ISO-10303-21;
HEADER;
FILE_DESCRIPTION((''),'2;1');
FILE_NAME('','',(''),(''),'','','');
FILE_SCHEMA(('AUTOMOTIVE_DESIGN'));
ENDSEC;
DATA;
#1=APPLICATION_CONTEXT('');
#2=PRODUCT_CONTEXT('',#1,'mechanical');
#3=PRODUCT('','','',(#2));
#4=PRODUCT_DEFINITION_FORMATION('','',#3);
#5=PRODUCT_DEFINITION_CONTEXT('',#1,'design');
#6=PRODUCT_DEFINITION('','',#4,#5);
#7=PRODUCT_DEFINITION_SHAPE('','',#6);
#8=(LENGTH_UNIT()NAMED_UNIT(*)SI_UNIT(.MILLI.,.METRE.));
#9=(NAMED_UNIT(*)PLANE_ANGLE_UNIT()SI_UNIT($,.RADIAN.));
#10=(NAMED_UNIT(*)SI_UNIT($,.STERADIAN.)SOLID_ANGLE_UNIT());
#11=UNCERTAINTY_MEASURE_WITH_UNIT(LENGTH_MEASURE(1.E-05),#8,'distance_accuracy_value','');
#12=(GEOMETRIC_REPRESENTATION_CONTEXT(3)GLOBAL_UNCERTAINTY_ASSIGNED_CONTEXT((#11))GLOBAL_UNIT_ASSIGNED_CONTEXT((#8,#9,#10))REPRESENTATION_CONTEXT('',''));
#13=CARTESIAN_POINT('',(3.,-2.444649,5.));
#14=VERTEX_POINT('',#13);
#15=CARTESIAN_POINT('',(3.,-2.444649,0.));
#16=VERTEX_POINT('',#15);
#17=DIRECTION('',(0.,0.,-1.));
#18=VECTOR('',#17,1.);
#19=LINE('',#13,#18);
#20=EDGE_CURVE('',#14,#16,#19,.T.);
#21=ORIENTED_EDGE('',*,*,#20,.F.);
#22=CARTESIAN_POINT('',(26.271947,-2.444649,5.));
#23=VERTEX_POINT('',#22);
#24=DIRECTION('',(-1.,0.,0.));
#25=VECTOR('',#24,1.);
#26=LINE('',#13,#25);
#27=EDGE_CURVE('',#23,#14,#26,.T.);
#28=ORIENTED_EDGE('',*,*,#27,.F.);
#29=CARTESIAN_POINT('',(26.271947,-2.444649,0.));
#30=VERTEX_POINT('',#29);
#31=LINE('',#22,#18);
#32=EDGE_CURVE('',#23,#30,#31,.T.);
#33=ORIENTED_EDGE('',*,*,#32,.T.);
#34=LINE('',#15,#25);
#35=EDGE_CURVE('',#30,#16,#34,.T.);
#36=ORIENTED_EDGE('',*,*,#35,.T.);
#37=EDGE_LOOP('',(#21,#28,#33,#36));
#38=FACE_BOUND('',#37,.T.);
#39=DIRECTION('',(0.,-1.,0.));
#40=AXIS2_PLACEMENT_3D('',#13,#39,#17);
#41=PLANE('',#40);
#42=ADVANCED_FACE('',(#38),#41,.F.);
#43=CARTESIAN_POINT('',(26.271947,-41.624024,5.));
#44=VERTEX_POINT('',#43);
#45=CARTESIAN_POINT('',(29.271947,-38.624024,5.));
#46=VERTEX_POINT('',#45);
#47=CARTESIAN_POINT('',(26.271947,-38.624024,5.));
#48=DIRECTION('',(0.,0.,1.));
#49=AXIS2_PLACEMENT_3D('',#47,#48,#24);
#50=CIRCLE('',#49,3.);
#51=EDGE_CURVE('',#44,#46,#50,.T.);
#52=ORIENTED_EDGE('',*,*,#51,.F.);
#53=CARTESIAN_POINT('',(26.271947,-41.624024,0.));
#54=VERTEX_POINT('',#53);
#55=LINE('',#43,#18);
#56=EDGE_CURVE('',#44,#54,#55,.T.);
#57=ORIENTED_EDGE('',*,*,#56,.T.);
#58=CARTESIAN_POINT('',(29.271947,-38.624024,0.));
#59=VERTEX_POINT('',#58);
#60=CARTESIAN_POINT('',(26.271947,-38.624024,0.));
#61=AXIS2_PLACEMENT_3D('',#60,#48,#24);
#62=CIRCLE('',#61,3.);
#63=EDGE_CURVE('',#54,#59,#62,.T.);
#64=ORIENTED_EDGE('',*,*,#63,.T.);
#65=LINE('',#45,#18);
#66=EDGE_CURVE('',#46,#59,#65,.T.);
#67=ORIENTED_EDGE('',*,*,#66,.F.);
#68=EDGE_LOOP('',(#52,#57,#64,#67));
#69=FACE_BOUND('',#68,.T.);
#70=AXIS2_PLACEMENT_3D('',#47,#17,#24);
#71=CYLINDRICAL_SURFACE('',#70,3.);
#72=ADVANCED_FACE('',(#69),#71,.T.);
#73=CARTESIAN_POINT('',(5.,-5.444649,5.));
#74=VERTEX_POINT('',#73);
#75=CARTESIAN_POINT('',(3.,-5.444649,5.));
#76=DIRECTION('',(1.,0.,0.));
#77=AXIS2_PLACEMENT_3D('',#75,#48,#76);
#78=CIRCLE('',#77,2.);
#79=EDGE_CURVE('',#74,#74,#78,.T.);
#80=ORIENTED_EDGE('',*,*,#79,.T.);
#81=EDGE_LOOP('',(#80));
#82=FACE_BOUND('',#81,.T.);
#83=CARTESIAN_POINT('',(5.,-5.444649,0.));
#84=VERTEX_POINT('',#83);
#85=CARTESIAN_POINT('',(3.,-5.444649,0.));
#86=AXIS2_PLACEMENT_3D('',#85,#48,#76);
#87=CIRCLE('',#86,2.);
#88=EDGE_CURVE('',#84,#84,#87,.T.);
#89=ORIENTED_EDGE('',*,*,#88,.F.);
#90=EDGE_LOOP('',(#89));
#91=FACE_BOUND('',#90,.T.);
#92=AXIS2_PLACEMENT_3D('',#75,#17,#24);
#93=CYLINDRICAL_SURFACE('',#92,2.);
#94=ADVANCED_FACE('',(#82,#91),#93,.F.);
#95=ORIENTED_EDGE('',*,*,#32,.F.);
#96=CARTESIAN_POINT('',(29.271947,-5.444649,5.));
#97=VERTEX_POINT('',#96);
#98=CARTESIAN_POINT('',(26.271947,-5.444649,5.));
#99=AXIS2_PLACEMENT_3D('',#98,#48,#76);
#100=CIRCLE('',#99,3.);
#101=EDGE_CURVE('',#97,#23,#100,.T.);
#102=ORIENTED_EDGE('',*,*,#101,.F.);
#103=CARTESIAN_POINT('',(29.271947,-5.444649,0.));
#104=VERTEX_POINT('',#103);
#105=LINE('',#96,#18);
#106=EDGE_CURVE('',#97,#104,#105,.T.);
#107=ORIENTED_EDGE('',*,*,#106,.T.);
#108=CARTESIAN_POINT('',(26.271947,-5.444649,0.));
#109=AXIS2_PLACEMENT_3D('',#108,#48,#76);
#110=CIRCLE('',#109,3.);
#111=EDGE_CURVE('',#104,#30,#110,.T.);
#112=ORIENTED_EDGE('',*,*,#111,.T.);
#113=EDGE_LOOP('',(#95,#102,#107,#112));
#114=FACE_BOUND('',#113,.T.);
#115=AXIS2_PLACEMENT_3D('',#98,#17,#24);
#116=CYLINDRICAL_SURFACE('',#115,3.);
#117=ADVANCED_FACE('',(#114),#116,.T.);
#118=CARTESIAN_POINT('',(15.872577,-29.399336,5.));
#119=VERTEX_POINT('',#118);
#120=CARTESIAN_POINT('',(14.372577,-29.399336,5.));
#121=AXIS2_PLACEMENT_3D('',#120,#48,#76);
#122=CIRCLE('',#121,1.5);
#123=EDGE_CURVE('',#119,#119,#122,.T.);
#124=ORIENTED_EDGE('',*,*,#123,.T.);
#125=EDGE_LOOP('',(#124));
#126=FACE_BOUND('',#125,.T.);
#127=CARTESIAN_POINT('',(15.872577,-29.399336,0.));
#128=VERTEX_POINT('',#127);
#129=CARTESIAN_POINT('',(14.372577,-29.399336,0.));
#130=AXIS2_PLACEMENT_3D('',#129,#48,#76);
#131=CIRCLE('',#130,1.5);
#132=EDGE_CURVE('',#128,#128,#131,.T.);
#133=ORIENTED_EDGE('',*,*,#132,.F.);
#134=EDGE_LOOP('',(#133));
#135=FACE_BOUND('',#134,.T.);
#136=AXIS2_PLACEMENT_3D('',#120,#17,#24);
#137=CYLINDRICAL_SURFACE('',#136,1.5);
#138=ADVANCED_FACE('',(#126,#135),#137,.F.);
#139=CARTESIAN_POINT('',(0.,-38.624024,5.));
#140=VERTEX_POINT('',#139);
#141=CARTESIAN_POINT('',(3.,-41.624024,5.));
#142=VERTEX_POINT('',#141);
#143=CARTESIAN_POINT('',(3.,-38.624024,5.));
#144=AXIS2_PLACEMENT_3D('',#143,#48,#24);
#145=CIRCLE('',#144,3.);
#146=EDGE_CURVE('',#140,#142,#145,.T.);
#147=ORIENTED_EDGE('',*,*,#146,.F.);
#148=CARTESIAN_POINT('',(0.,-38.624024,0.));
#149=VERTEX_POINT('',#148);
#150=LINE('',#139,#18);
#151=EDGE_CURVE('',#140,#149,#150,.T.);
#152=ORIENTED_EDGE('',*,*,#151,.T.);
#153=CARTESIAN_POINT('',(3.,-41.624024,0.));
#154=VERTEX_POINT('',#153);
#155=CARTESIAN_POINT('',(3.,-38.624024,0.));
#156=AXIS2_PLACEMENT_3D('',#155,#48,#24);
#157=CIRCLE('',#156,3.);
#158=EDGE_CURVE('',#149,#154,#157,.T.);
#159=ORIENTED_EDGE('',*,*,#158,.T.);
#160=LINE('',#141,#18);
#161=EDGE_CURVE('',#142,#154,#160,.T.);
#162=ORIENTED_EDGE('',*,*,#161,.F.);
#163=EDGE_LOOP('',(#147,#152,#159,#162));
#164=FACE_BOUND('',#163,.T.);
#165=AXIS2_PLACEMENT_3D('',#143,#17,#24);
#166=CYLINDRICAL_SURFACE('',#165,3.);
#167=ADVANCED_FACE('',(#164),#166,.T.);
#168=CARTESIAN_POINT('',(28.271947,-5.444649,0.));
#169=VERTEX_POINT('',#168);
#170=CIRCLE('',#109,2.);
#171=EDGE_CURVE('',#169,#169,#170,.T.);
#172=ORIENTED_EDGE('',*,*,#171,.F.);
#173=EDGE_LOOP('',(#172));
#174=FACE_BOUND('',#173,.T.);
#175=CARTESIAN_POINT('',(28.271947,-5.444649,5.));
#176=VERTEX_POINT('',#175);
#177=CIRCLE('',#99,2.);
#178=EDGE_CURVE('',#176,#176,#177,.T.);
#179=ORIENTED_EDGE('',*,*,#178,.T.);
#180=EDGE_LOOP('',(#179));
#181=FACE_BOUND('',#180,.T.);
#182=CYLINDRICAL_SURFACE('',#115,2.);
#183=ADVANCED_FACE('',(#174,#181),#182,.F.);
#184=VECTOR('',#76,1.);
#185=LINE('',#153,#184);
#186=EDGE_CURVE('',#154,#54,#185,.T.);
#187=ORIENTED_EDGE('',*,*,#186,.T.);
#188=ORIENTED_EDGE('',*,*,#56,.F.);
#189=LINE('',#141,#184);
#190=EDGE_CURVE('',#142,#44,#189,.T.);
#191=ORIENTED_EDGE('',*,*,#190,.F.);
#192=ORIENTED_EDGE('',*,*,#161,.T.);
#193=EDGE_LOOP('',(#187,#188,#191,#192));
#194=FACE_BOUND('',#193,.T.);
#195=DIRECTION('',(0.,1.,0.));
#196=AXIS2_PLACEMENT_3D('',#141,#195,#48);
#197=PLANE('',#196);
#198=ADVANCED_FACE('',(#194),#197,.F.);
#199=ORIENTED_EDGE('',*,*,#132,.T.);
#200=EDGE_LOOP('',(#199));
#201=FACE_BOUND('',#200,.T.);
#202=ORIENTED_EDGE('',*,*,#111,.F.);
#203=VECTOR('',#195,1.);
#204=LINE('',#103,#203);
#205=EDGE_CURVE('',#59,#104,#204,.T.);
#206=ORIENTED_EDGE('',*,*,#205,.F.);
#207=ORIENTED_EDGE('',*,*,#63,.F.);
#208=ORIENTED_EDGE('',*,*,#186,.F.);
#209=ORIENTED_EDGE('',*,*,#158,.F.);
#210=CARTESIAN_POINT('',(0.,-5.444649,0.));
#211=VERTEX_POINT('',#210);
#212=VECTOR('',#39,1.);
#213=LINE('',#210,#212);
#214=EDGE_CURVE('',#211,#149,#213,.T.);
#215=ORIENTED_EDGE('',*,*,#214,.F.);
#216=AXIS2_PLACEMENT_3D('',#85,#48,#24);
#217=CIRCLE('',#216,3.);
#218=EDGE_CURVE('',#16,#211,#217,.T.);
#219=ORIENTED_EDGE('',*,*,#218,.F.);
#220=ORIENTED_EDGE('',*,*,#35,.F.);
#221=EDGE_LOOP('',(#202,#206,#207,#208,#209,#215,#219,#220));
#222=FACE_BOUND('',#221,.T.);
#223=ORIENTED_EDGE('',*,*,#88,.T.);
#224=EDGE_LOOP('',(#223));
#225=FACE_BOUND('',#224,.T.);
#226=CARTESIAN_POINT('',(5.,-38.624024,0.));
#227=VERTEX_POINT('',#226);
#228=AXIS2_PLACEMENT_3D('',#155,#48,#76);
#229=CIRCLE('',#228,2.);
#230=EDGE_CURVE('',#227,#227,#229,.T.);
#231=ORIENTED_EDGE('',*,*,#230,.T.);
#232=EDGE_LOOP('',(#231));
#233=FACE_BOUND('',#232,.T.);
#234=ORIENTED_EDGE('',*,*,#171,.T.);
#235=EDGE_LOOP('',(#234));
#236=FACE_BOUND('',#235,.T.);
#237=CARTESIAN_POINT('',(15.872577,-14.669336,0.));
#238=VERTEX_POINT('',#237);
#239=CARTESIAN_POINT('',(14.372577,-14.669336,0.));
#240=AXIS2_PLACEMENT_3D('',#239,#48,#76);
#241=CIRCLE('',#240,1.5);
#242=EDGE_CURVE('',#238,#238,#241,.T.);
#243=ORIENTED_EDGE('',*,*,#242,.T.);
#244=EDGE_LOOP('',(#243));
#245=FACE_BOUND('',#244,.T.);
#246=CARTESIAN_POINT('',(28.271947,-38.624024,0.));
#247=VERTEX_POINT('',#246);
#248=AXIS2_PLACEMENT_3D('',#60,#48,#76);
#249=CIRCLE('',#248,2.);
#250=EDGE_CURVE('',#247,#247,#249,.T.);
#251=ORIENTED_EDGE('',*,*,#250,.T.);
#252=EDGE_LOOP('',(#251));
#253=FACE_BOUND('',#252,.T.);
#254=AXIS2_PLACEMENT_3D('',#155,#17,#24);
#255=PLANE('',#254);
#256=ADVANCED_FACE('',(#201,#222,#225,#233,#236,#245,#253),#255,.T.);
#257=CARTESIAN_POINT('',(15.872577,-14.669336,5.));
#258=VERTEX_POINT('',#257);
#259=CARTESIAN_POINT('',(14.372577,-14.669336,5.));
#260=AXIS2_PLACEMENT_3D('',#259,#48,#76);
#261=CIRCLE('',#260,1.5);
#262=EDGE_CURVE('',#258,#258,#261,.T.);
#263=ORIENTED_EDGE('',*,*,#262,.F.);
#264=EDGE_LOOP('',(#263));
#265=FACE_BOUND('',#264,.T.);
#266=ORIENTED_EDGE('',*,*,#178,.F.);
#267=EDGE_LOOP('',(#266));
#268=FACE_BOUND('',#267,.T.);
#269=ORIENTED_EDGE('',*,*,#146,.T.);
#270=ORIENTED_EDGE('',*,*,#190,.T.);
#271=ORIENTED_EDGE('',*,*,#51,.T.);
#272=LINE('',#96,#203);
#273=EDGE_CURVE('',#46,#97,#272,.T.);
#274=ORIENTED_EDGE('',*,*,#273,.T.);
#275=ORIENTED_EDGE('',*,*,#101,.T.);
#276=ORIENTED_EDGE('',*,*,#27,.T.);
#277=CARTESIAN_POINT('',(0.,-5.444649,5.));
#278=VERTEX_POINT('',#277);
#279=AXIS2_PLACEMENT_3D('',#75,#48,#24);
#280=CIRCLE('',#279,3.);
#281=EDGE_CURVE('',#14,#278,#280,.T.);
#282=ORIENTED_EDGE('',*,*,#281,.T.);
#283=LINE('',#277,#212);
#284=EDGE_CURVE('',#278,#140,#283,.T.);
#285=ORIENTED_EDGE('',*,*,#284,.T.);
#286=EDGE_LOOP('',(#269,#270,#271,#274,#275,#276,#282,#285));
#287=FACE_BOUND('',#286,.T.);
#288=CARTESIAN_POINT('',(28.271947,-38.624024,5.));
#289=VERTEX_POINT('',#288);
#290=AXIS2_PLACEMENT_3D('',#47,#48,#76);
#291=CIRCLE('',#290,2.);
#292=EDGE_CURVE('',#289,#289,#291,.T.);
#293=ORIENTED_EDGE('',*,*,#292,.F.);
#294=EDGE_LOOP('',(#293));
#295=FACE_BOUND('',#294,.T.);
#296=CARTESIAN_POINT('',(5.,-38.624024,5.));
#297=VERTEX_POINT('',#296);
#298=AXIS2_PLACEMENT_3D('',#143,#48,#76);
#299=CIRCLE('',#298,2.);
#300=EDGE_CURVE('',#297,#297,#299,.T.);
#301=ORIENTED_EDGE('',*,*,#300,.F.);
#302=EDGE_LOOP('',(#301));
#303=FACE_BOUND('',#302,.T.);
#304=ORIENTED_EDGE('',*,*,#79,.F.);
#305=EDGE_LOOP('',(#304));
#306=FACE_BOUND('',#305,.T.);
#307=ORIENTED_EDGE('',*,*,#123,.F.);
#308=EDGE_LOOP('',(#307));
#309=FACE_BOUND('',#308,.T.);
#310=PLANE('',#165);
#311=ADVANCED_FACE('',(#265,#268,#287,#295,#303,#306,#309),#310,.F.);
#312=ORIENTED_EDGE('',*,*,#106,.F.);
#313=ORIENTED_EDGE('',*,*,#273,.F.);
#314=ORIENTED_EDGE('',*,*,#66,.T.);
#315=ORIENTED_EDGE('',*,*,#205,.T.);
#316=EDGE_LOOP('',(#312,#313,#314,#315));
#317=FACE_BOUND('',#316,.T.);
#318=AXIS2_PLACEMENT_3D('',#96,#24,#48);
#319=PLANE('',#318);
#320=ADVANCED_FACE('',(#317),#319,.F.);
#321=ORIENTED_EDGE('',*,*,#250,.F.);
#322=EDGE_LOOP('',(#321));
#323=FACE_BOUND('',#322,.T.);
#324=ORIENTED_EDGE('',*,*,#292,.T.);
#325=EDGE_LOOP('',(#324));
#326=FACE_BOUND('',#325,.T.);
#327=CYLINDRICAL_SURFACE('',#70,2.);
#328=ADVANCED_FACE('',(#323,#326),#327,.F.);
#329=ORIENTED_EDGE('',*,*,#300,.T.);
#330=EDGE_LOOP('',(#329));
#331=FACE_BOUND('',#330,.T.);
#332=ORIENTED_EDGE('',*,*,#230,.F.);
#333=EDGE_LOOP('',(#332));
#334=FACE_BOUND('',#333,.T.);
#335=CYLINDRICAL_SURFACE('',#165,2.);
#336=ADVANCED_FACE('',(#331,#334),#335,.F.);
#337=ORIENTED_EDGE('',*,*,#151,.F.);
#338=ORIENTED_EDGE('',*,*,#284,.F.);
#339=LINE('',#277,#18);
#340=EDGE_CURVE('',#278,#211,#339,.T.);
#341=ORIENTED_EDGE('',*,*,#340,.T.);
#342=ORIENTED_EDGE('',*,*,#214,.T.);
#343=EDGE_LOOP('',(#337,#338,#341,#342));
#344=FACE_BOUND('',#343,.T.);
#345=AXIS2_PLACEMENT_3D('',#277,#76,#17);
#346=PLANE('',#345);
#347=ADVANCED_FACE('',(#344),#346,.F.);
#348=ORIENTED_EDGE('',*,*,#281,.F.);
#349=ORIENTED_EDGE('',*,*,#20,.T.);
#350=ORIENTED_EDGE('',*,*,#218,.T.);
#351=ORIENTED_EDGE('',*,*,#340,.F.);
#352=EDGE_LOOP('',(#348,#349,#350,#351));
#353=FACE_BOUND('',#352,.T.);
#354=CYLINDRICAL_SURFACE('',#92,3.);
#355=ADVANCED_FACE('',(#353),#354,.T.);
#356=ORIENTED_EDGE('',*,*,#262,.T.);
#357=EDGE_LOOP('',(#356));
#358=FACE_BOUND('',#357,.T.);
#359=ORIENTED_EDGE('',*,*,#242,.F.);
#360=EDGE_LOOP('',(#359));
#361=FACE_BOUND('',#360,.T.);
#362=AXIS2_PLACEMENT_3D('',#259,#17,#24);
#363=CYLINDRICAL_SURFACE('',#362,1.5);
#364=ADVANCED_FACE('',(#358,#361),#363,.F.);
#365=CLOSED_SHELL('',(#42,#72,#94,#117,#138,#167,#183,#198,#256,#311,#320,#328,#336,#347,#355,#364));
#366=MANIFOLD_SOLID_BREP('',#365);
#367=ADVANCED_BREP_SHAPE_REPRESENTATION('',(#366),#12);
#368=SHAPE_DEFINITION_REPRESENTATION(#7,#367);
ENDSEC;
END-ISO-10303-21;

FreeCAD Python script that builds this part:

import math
import FreeCAD as App
import Part
import Sketcher

doc = App.newDocument("Part")
body = doc.addObject("PartDesign::Body", "Body")

# Sketch on XY plane
sketch1 = doc.addObject("Sketcher::SketchObject", "Sketch")
body.addObject(sketch1)
sketch1.AttachmentSupport = (doc.XY_Plane, [""])
sketch1.MapMode = "FlatFace"
sketch1.addGeometry(Part.LineSegment(App.Vector(26.3, -2.4, 0), App.Vector(3, -2.4, 0)), False)
sketch1.addGeometry(Part.ArcOfCircle(Part.Circle(App.Vector(3, -5.4, 0), App.Vector(0, 0, 1), 3), math.radians(90), math.radians(180)), False)
sketch1.addGeometry(Part.LineSegment(App.Vector(0, -5.4, 0), App.Vector(0, -38.6, 0)), False)
sketch1.addGeometry(Part.ArcOfCircle(Part.Circle(App.Vector(3, -38.6, 0), App.Vector(0, 0, 1), 3), math.radians(180), math.radians(270)), False)
sketch1.addGeometry(Part.LineSegment(App.Vector(3, -41.6, 0), App.Vector(26.3, -41.6, 0)), False)
sketch1.addGeometry(Part.ArcOfCircle(Part.Circle(App.Vector(26.3, -38.6, 0), App.Vector(0, 0, 1), 3), math.radians(-90), math.radians(0)), False)
sketch1.addGeometry(Part.LineSegment(App.Vector(29.3, -38.6, 0), App.Vector(29.3, -5.4, 0)), False)
sketch1.addGeometry(Part.ArcOfCircle(Part.Circle(App.Vector(26.3, -5.4, 0), App.Vector(0, 0, 1), 3), math.radians(0), math.radians(90)), False)
sketch1.addGeometry(Part.Circle(App.Vector(26.3, -38.6, 0), App.Vector(0, 0, 1), 2), False)
sketch1.addGeometry(Part.Circle(App.Vector(3, -38.6, 0), App.Vector(0, 0, 1), 2), False)
sketch1.addGeometry(Part.Circle(App.Vector(14.4, -29.4, 0), App.Vector(0, 0, 1), 1.5), False)
sketch1.addGeometry(Part.Circle(App.Vector(26.3, -5.4, 0), App.Vector(0, 0, 1), 2), False)
sketch1.addGeometry(Part.Circle(App.Vector(14.4, -14.7, 0), App.Vector(0, 0, 1), 1.5), False)
sketch1.addGeometry(Part.Circle(App.Vector(3, -5.4, 0), App.Vector(0, 0, 1), 2), False)
sketch1.addConstraint(Sketcher.Constraint("Tangent", 0, 2, 1, 1))
sketch1.addConstraint(Sketcher.Constraint("Tangent", 1, 2, 2, 1))
sketch1.addConstraint(Sketcher.Constraint("Tangent", 2, 2, 3, 1))
sketch1.addConstraint(Sketcher.Constraint("Tangent", 3, 2, 4, 1))
sketch1.addConstraint(Sketcher.Constraint("Tangent", 4, 2, 5, 1))
sketch1.addConstraint(Sketcher.Constraint("Tangent", 5, 2, 6, 1))
sketch1.addConstraint(Sketcher.Constraint("Tangent", 6, 2, 7, 1))
sketch1.addConstraint(Sketcher.Constraint("Tangent", 7, 2, 0, 1))
sketch1.addConstraint(Sketcher.Constraint("Horizontal", 0))
sketch1.addConstraint(Sketcher.Constraint("Vertical", 2))
sketch1.addConstraint(Sketcher.Constraint("Horizontal", 4))
sketch1.addConstraint(Sketcher.Constraint("Vertical", 6))
sketch1.addConstraint(Sketcher.Constraint("Coincident", 8, 3, 5, 3))
sketch1.addConstraint(Sketcher.Constraint("Coincident", 9, 3, 3, 3))
sketch1.addConstraint(Sketcher.Constraint("Coincident", 11, 3, 7, 3))
sketch1.addConstraint(Sketcher.Constraint("Coincident", 13, 3, 1, 3))
sketch1.addConstraint(Sketcher.Constraint("Equal", 1, 3))
sketch1.addConstraint(Sketcher.Constraint("Equal", 3, 5))
sketch1.addConstraint(Sketcher.Constraint("Equal", 5, 7))
sketch1.addConstraint(Sketcher.Constraint("Equal", 8, 9))
sketch1.addConstraint(Sketcher.Constraint("Equal", 9, 11))
sketch1.addConstraint(Sketcher.Constraint("Equal", 10, 12))
sketch1.addConstraint(Sketcher.Constraint("Equal", 11, 13))
sketch1.addConstraint(Sketcher.Constraint("PointOnObject", 1, 2, -2))
sketch1.addConstraint(Sketcher.Constraint("Vertical", 10, 3, 12, 3))
sketch1.addConstraint(Sketcher.Constraint("Diameter", 8, 4.0))
sketch1.addConstraint(Sketcher.Constraint("Diameter", 10, 3.0))
sketch1.addConstraint(Sketcher.Constraint("Radius", 1, 3.0))
sketch1.addConstraint(Sketcher.Constraint("DistanceY", 10, 3, 12, 3, 14.73))
sketch1.addConstraint(Sketcher.Constraint("DistanceX", 0, 2, 0, 1, 23.271947))
sketch1.addConstraint(Sketcher.Constraint("DistanceY", 2, 2, 2, 1, 33.179375))
sketch1.addConstraint(Sketcher.Constraint("DistanceY", 1, 3, -1, 1, 5.444649))
sketch1.addConstraint(Sketcher.Constraint("DistanceX", 10, 3, 5, 3, 11.89937))
sketch1.addConstraint(Sketcher.Constraint("DistanceY", 10, 3, -1, 1, 29.399336))
pad1 = doc.addObject("PartDesign::Pad", "Pad")
body.addObject(pad1)
pad1.Profile = sketch1
pad1.Length = 5

doc.recompute()
